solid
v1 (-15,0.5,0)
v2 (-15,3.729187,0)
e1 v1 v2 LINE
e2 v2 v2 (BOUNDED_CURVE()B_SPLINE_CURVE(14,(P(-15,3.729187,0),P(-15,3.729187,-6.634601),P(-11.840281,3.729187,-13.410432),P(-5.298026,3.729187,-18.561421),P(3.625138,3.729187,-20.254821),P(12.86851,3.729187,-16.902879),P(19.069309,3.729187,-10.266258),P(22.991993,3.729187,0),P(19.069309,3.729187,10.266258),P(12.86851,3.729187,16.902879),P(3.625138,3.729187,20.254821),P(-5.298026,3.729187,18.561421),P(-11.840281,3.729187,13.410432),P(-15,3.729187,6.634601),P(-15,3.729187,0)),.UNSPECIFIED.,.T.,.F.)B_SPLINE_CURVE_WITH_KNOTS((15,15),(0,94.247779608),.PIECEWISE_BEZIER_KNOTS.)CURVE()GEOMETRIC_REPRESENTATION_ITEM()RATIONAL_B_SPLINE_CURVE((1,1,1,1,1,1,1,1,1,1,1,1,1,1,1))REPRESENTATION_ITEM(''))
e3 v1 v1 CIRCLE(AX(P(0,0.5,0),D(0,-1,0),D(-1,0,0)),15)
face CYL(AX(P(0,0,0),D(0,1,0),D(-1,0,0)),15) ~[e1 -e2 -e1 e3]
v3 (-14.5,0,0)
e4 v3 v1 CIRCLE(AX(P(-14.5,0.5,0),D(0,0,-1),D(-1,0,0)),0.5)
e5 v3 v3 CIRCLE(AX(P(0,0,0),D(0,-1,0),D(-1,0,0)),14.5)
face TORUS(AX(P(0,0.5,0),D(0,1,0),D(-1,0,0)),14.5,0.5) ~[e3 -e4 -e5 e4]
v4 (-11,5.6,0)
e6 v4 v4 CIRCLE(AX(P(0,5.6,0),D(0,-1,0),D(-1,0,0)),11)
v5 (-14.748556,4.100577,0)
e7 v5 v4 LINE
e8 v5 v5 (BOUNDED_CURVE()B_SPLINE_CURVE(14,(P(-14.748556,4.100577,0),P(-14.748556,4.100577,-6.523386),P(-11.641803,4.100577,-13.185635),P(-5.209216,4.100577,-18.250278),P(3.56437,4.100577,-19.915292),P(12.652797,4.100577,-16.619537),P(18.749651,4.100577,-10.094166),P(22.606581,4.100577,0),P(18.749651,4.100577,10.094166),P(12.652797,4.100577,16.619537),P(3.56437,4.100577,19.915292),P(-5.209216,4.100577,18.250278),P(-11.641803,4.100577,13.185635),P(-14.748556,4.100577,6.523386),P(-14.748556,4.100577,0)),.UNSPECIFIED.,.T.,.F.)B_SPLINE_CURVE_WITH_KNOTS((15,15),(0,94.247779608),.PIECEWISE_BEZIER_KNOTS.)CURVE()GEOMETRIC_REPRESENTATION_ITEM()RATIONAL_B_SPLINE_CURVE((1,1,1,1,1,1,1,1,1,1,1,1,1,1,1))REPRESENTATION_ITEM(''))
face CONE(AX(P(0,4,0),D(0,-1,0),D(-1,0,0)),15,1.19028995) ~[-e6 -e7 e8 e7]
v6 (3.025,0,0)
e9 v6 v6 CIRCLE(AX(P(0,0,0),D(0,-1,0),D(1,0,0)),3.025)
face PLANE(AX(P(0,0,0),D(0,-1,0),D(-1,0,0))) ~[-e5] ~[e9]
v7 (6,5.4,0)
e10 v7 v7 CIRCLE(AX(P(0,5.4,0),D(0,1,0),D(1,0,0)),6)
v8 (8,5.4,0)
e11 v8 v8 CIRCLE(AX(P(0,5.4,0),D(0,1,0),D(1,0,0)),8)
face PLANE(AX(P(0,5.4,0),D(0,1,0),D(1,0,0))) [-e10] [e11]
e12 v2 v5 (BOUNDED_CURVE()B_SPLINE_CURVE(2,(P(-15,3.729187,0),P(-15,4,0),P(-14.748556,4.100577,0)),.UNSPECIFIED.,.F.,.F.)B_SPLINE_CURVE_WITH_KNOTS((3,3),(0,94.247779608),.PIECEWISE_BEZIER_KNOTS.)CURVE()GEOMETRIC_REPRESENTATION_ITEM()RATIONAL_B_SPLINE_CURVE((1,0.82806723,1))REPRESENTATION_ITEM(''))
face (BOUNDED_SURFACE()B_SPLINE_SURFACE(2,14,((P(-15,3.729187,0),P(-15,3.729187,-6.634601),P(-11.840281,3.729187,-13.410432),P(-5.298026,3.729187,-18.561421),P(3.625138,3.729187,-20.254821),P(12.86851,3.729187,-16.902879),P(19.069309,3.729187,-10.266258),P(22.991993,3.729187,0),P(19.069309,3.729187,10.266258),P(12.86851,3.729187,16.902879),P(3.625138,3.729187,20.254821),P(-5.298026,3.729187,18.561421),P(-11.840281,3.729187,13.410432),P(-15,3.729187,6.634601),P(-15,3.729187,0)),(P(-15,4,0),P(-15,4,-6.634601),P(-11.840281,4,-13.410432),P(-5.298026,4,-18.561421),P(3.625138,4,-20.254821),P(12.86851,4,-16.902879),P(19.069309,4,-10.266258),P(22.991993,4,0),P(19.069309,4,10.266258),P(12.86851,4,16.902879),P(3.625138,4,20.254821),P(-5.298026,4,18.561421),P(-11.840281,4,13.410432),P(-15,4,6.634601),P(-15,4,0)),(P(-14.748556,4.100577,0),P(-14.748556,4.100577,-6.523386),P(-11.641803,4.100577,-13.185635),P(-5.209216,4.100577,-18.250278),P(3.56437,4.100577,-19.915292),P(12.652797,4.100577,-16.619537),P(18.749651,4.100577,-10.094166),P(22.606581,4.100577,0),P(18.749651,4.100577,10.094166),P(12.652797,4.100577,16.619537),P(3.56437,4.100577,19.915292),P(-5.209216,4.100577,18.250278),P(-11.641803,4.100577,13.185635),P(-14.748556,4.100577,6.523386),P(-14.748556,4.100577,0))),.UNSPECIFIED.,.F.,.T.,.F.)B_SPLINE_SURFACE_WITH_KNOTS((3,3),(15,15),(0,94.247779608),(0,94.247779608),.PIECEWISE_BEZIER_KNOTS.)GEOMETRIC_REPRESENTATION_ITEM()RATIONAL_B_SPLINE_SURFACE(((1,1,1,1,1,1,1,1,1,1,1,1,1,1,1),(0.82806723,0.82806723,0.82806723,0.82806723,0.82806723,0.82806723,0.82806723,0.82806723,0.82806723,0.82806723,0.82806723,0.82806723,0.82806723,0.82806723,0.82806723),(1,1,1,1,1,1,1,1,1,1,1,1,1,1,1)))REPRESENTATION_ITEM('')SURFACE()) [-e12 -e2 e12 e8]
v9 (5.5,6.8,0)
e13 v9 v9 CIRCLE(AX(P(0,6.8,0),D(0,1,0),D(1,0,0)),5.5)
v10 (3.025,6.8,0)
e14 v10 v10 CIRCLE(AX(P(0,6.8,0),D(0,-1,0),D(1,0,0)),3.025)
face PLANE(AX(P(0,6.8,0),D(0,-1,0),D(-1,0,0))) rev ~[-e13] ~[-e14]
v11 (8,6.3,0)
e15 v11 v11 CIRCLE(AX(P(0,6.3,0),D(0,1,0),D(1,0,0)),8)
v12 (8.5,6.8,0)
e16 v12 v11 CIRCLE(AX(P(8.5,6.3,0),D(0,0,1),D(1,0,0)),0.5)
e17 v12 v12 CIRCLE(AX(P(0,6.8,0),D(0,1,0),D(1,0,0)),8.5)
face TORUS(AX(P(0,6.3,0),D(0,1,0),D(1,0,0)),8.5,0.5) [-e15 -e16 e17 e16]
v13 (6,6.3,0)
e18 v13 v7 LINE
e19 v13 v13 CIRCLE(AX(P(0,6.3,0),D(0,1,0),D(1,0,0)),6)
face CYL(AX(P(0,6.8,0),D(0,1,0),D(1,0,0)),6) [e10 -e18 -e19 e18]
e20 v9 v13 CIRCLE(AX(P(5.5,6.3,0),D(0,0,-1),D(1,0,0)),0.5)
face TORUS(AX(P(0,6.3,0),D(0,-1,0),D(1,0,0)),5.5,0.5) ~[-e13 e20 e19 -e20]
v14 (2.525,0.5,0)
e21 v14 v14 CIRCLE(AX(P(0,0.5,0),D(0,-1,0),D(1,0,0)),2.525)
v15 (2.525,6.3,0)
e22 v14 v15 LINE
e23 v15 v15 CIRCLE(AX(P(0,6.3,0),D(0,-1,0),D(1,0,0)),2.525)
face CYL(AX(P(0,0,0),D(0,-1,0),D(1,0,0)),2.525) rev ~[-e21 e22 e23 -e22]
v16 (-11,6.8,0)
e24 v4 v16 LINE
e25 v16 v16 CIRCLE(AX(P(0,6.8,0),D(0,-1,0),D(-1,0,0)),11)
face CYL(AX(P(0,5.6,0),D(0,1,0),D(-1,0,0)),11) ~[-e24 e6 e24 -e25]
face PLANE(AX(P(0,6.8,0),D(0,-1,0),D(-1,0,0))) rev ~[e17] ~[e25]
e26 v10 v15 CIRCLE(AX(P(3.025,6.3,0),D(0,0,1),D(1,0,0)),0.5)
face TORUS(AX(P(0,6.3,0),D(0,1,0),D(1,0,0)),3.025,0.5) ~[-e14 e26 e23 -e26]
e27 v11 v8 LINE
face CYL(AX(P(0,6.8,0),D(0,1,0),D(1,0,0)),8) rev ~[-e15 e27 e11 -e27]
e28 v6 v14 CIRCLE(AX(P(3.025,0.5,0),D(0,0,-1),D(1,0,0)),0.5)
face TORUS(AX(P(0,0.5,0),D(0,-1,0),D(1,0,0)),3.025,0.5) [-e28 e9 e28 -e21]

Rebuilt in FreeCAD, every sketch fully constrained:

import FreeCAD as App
import Part
import Sketcher

V = App.Vector
Q = App.Units.Quantity


def edges_at(feature, points):
    """Names of the edges that pass closest to the given points."""
    edges = feature.Shape.Edges
    near = lambda p: min(range(len(edges)), key=lambda i: edges[i].distToShape(Part.Vertex(*p))[0])
    return sorted({f"Edge{near(p) + 1}" for p in points})

doc = App.newDocument("Part")
params = doc.addObject("Spreadsheet::Sheet", "Params")
for row, (alias, value) in enumerate([
    ("sketch1_width", "11 mm"),
    ("sketch1_height", "4 mm"),
    ("sketch1_height2", "1.2 mm"),
    ("revolution_angle", "360 deg"),
    ("fillet_radius", "0.5 mm"),
    ("sketch2_diameter", "5.05 mm"),
    ("pocket1_length", "6.8 mm"),
    ("fillet2_radius", "0.4 mm"),
    ("sketch3_diameter", "16 mm"),
    ("sketch3_diameter2", "12 mm"),
    ("pocket2_length", "1.4 mm"),
    ("fillet3_radius", "0.5 mm"),
    ("fillet4_radius", "0.5 mm"),
], start=1):
    params.set(f"A{row}", alias)
    params.set(f"B{row}", "=" + value)
    params.setAlias(f"B{row}", alias)

body = doc.addObject("PartDesign::Body", "Body")

# Sketch on XY plane
sketch1 = doc.addObject("Sketcher::SketchObject", "Sketch")
body.addObject(sketch1)
sketch1.AttachmentSupport = (doc.XY_Plane, [""])
sketch1.MapMode = "FlatFace"
sketch1.addGeometry(Part.LineSegment(V(-15, 0, 0), V(0, 0, 0)), False)
sketch1.addGeometry(Part.LineSegment(V(0, 0, 0), V(0, 6.8, 0)), False)
sketch1.addGeometry(Part.LineSegment(V(0, 6.8, 0), V(-11, 6.8, 0)), False)
sketch1.addGeometry(Part.LineSegment(V(-11, 6.8, 0), V(-11, 5.6, 0)), False)
sketch1.addGeometry(Part.LineSegment(V(-11, 5.6, 0), V(-15, 4, 0)), False)
sketch1.addGeometry(Part.LineSegment(V(-15, 4, 0), V(-15, 0, 0)), False)
sketch1.addConstraint(Sketcher.Constraint("Coincident", 0, 2, 1, 1))
sketch1.addConstraint(Sketcher.Constraint("Coincident", 1, 2, 2, 1))
sketch1.addConstraint(Sketcher.Constraint("Coincident", 2, 2, 3, 1))
sketch1.addConstraint(Sketcher.Constraint("Coincident", 3, 2, 4, 1))
sketch1.addConstraint(Sketcher.Constraint("Coincident", 4, 2, 5, 1))
sketch1.addConstraint(Sketcher.Constraint("Coincident", 5, 2, 0, 1))
sketch1.addConstraint(Sketcher.Constraint("Horizontal", 0))
sketch1.addConstraint(Sketcher.Constraint("Vertical", 1))
sketch1.addConstraint(Sketcher.Constraint("Horizontal", 2))
sketch1.addConstraint(Sketcher.Constraint("Vertical", 3))
sketch1.addConstraint(Sketcher.Constraint("Vertical", 5))
sketch1.addConstraint(Sketcher.Constraint("Coincident", 0, 2, -1, 1))
sketch1.addConstraint(Sketcher.Constraint("DistanceX", 2, 2, 2, 1, Q("11 mm")))
sketch1.addConstraint(Sketcher.Constraint("DistanceY", 5, 2, 5, 1, Q("4 mm")))
sketch1.addConstraint(Sketcher.Constraint("DistanceY", 3, 2, 3, 1, Q("1.2 mm")))
sketch1.addConstraint(Sketcher.Constraint("DistanceX", 4, 2, 3, 2, Q("4 mm")))
sketch1.addConstraint(Sketcher.Constraint("DistanceY", 4, 2, 2, 2, Q("2.8 mm")))
sketch1.setExpression("Constraints[12]", "Params.sketch1_width")
sketch1.setExpression("Constraints[13]", "Params.sketch1_height")
sketch1.setExpression("Constraints[14]", "Params.sketch1_height2")
revolution = doc.addObject("PartDesign::Revolution", "Revolution")
body.addObject(revolution)
revolution.Profile = sketch1
revolution.ReferenceAxis = (sketch1, ["V_Axis"])
revolution.setExpression("Angle", "Params.revolution_angle")
doc.recompute()

fillet = doc.addObject("PartDesign::Fillet", "Fillet")
body.addObject(fillet)
fillet.Base = (revolution, edges_at(revolution, [(15, 0, 0)]))
fillet.setExpression("Radius", "Params.fillet_radius")

# Sketch on XZ plane
sketch2 = doc.addObject("Sketcher::SketchObject", "Sketch001")
body.addObject(sketch2)
sketch2.AttachmentSupport = (doc.XZ_Plane, [""])
sketch2.MapMode = "FlatFace"
sketch2.addGeometry(Part.Circle(V(0, 0, 0), V(0, 0, 1), 2.525), False)
sketch2.addConstraint(Sketcher.Constraint("Coincident", 0, 3, -1, 1))
sketch2.addConstraint(Sketcher.Constraint("Diameter", 0, Q("5.05 mm")))
sketch2.setExpression("Constraints[1]", "Params.sketch2_diameter")
pocket1 = doc.addObject("PartDesign::Pocket", "Pocket")
body.addObject(pocket1)
pocket1.Profile = sketch2
pocket1.setExpression("Length", "Params.pocket1_length")
doc.recompute()

fillet2 = doc.addObject("PartDesign::Fillet", "Fillet001")
body.addObject(fillet2)
fillet2.Base = (pocket1, edges_at(pocket1, [(15, 4, 0)]))
fillet2.setExpression("Radius", "Params.fillet2_radius")

# Sketch on XZ plane
sketch3 = doc.addObject("Sketcher::SketchObject", "Sketch002")
body.addObject(sketch3)
sketch3.AttachmentSupport = (doc.XZ_Plane, [""])
sketch3.MapMode = "FlatFace"
sketch3.AttachmentOffset = App.Placement(V(0, 0, -6.8), App.Rotation())
sketch3.addGeometry(Part.Circle(V(0, 0, 0), V(0, 0, 1), 8), False)
sketch3.addGeometry(Part.Circle(V(0, 0, 0), V(0, 0, 1), 6), False)
sketch3.addConstraint(Sketcher.Constraint("Coincident", 0, 3, -1, 1))
sketch3.addConstraint(Sketcher.Constraint("Coincident", 1, 3, -1, 1))
sketch3.addConstraint(Sketcher.Constraint("Diameter", 0, Q("16 mm")))
sketch3.addConstraint(Sketcher.Constraint("Diameter", 1, Q("12 mm")))
sketch3.setExpression("Constraints[2]", "Params.sketch3_diameter")
sketch3.setExpression("Constraints[3]", "Params.sketch3_diameter2")
pocket2 = doc.addObject("PartDesign::Pocket", "Pocket001")
body.addObject(pocket2)
pocket2.Profile = sketch3
pocket2.setExpression("Length", "Params.pocket2_length")
pocket2.Reversed = True
doc.recompute()

fillet3 = doc.addObject("PartDesign::Fillet", "Fillet002")
body.addObject(fillet3)
fillet3.Base = (pocket2, edges_at(pocket2, [(-8, 6.8, 0), (-6, 6.8, 0)]))
fillet3.setExpression("Radius", "Params.fillet3_radius")
doc.recompute()

fillet4 = doc.addObject("PartDesign::Fillet", "Fillet003")
body.addObject(fillet4)
fillet4.Base = (fillet3, edges_at(fillet3, [(-2.525, 6.8, 0), (-2.525, 0, 0)]))
fillet4.setExpression("Radius", "Params.fillet4_radius")

doc.recompute()
